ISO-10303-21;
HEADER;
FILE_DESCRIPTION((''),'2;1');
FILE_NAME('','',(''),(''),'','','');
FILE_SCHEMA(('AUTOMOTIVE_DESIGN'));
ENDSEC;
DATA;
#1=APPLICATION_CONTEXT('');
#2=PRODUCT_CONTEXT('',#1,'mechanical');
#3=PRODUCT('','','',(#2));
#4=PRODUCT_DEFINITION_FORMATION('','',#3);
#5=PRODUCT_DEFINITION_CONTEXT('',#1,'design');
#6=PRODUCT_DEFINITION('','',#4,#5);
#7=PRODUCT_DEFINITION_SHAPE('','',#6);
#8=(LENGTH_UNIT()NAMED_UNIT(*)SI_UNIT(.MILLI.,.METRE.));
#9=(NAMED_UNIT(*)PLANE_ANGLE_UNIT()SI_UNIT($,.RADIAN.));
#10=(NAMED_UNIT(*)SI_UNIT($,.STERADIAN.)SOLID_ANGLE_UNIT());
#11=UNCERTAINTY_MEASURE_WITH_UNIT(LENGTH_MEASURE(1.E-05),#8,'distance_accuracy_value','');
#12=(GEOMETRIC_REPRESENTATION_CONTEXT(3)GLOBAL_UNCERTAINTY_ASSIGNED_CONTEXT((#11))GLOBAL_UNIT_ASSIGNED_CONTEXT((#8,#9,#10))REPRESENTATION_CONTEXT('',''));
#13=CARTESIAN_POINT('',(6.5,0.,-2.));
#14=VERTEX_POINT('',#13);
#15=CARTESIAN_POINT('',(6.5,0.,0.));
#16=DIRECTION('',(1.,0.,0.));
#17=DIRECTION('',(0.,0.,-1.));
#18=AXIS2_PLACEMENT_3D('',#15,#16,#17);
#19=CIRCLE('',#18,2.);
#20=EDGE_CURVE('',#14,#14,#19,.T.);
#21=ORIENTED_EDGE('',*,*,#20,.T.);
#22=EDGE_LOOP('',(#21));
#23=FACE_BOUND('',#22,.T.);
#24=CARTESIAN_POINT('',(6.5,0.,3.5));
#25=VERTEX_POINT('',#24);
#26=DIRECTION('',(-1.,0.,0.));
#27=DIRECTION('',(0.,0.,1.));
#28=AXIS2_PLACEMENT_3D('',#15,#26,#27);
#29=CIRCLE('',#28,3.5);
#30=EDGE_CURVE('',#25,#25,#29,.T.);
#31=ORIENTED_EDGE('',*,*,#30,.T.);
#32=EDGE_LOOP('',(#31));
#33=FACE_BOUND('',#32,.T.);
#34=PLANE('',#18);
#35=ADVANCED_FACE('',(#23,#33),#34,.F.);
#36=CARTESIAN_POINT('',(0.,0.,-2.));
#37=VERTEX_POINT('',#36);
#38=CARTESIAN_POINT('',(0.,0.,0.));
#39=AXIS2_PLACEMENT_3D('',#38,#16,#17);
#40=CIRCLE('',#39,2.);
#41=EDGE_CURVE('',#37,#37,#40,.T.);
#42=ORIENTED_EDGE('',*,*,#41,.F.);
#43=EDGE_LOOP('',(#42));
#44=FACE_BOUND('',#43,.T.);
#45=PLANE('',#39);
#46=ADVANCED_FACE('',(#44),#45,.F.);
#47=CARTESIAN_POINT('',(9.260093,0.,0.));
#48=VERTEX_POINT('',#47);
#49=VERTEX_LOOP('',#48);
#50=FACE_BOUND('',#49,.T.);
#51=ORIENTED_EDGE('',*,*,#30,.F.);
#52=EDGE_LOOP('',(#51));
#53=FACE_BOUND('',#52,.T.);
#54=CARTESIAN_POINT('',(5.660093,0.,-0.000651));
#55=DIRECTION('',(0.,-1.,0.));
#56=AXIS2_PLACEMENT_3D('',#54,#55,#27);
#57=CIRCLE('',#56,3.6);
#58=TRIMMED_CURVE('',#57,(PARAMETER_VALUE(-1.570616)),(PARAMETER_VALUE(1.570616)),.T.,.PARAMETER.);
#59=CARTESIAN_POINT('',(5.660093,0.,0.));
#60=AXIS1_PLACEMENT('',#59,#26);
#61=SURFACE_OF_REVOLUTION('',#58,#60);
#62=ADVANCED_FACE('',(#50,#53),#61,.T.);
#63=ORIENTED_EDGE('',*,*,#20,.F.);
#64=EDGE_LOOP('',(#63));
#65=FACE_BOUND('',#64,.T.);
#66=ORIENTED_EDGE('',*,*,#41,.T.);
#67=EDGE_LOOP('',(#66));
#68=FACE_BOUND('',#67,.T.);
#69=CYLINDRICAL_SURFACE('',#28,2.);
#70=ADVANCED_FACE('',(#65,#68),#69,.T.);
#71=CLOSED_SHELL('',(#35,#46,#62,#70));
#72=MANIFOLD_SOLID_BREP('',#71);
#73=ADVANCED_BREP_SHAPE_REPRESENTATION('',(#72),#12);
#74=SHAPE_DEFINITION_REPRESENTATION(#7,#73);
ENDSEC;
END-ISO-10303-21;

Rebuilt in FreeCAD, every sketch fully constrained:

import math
import FreeCAD as App
import Part
import Sketcher

V = App.Vector
Q = App.Units.Quantity

doc = App.newDocument("Part")
params = doc.addObject("Spreadsheet::Sheet", "Params")
for row, (alias, value) in enumerate([
    ("sketch1_diameter", "4 mm"),
    ("pad1_length", "6.5 mm"),
    ("sketch2_radius", "3.6 mm"),
    ("sketch2_height", "3.5 mm"),
    ("revolution_angle", "360 deg"),
], start=1):
    params.set(f"A{row}", alias)
    params.set(f"B{row}", "=" + value)
    params.setAlias(f"B{row}", alias)

body = doc.addObject("PartDesign::Body", "Body")

# Sketch on YZ plane
sketch1 = body.newObject("Sketcher::SketchObject", "Sketch")
sketch1.AttachmentSupport = (doc.getObject("YZ_Plane"), [""])
sketch1.MapMode = "FlatFace"
sketch1.addGeometry(Part.Circle(V(0, 0, 0), V(0, 0, 1), 2), False)
sketch1.addConstraint([
    Sketcher.Constraint("Coincident", 0, 3, -1, 1),
    Sketcher.Constraint("Diameter", 0, Q("4 mm")),
])
sketch1.setExpression("Constraints[1]", "Params.sketch1_diameter")
pad1 = body.newObject("PartDesign::Pad", "Pad")
pad1.Profile = sketch1
pad1.setExpression("Length", "Params.pad1_length")

# Sketch on XZ plane
sketch2 = body.newObject("Sketcher::SketchObject", "Sketch001")
sketch2.AttachmentSupport = (doc.getObject("XZ_Plane"), [""])
sketch2.MapMode = "FlatFace"
sketch2.addGeometry([
    Part.LineSegment(V(6.5, 0, 0), V(9.3, 0, 0)),
    Part.ArcOfCircle(Part.Circle(V(5.7, 0, 0), V(0, 0, 1), 3.6), math.radians(-77), math.radians(0)),
    Part.LineSegment(V(6.5, -3.5, 0), V(6.5, 0, 0)),
], False)
sketch2.addConstraint([
    Sketcher.Constraint("Coincident", 0, 2, 1, 2),
    Sketcher.Constraint("Coincident", 1, 1, 2, 1),
    Sketcher.Constraint("Coincident", 2, 2, 0, 1),
    Sketcher.Constraint("Horizontal", 0),
    Sketcher.Constraint("Vertical", 2),
    Sketcher.Constraint("PointOnObject", 0, 2, -1),
    Sketcher.Constraint("Radius", 1, Q("3.6 mm")),
    Sketcher.Constraint("DistanceY", 2, 1, 2, 2, Q("3.5 mm")),
    Sketcher.Constraint("DistanceX", -1, 1, 1, 1, Q("6.5 mm")),
    Sketcher.Constraint("DistanceX", 0, 1, 0, 2, Q("2.760093 mm")),
])
sketch2.setExpression("Constraints[6]", "Params.sketch2_radius")
sketch2.setExpression("Constraints[7]", "Params.sketch2_height")
revolution = body.newObject("PartDesign::Revolution", "Revolution")
revolution.Profile = sketch2
revolution.ReferenceAxis = (sketch2, ["H_Axis"])
revolution.setExpression("Angle", "Params.revolution_angle")

doc.recompute()
